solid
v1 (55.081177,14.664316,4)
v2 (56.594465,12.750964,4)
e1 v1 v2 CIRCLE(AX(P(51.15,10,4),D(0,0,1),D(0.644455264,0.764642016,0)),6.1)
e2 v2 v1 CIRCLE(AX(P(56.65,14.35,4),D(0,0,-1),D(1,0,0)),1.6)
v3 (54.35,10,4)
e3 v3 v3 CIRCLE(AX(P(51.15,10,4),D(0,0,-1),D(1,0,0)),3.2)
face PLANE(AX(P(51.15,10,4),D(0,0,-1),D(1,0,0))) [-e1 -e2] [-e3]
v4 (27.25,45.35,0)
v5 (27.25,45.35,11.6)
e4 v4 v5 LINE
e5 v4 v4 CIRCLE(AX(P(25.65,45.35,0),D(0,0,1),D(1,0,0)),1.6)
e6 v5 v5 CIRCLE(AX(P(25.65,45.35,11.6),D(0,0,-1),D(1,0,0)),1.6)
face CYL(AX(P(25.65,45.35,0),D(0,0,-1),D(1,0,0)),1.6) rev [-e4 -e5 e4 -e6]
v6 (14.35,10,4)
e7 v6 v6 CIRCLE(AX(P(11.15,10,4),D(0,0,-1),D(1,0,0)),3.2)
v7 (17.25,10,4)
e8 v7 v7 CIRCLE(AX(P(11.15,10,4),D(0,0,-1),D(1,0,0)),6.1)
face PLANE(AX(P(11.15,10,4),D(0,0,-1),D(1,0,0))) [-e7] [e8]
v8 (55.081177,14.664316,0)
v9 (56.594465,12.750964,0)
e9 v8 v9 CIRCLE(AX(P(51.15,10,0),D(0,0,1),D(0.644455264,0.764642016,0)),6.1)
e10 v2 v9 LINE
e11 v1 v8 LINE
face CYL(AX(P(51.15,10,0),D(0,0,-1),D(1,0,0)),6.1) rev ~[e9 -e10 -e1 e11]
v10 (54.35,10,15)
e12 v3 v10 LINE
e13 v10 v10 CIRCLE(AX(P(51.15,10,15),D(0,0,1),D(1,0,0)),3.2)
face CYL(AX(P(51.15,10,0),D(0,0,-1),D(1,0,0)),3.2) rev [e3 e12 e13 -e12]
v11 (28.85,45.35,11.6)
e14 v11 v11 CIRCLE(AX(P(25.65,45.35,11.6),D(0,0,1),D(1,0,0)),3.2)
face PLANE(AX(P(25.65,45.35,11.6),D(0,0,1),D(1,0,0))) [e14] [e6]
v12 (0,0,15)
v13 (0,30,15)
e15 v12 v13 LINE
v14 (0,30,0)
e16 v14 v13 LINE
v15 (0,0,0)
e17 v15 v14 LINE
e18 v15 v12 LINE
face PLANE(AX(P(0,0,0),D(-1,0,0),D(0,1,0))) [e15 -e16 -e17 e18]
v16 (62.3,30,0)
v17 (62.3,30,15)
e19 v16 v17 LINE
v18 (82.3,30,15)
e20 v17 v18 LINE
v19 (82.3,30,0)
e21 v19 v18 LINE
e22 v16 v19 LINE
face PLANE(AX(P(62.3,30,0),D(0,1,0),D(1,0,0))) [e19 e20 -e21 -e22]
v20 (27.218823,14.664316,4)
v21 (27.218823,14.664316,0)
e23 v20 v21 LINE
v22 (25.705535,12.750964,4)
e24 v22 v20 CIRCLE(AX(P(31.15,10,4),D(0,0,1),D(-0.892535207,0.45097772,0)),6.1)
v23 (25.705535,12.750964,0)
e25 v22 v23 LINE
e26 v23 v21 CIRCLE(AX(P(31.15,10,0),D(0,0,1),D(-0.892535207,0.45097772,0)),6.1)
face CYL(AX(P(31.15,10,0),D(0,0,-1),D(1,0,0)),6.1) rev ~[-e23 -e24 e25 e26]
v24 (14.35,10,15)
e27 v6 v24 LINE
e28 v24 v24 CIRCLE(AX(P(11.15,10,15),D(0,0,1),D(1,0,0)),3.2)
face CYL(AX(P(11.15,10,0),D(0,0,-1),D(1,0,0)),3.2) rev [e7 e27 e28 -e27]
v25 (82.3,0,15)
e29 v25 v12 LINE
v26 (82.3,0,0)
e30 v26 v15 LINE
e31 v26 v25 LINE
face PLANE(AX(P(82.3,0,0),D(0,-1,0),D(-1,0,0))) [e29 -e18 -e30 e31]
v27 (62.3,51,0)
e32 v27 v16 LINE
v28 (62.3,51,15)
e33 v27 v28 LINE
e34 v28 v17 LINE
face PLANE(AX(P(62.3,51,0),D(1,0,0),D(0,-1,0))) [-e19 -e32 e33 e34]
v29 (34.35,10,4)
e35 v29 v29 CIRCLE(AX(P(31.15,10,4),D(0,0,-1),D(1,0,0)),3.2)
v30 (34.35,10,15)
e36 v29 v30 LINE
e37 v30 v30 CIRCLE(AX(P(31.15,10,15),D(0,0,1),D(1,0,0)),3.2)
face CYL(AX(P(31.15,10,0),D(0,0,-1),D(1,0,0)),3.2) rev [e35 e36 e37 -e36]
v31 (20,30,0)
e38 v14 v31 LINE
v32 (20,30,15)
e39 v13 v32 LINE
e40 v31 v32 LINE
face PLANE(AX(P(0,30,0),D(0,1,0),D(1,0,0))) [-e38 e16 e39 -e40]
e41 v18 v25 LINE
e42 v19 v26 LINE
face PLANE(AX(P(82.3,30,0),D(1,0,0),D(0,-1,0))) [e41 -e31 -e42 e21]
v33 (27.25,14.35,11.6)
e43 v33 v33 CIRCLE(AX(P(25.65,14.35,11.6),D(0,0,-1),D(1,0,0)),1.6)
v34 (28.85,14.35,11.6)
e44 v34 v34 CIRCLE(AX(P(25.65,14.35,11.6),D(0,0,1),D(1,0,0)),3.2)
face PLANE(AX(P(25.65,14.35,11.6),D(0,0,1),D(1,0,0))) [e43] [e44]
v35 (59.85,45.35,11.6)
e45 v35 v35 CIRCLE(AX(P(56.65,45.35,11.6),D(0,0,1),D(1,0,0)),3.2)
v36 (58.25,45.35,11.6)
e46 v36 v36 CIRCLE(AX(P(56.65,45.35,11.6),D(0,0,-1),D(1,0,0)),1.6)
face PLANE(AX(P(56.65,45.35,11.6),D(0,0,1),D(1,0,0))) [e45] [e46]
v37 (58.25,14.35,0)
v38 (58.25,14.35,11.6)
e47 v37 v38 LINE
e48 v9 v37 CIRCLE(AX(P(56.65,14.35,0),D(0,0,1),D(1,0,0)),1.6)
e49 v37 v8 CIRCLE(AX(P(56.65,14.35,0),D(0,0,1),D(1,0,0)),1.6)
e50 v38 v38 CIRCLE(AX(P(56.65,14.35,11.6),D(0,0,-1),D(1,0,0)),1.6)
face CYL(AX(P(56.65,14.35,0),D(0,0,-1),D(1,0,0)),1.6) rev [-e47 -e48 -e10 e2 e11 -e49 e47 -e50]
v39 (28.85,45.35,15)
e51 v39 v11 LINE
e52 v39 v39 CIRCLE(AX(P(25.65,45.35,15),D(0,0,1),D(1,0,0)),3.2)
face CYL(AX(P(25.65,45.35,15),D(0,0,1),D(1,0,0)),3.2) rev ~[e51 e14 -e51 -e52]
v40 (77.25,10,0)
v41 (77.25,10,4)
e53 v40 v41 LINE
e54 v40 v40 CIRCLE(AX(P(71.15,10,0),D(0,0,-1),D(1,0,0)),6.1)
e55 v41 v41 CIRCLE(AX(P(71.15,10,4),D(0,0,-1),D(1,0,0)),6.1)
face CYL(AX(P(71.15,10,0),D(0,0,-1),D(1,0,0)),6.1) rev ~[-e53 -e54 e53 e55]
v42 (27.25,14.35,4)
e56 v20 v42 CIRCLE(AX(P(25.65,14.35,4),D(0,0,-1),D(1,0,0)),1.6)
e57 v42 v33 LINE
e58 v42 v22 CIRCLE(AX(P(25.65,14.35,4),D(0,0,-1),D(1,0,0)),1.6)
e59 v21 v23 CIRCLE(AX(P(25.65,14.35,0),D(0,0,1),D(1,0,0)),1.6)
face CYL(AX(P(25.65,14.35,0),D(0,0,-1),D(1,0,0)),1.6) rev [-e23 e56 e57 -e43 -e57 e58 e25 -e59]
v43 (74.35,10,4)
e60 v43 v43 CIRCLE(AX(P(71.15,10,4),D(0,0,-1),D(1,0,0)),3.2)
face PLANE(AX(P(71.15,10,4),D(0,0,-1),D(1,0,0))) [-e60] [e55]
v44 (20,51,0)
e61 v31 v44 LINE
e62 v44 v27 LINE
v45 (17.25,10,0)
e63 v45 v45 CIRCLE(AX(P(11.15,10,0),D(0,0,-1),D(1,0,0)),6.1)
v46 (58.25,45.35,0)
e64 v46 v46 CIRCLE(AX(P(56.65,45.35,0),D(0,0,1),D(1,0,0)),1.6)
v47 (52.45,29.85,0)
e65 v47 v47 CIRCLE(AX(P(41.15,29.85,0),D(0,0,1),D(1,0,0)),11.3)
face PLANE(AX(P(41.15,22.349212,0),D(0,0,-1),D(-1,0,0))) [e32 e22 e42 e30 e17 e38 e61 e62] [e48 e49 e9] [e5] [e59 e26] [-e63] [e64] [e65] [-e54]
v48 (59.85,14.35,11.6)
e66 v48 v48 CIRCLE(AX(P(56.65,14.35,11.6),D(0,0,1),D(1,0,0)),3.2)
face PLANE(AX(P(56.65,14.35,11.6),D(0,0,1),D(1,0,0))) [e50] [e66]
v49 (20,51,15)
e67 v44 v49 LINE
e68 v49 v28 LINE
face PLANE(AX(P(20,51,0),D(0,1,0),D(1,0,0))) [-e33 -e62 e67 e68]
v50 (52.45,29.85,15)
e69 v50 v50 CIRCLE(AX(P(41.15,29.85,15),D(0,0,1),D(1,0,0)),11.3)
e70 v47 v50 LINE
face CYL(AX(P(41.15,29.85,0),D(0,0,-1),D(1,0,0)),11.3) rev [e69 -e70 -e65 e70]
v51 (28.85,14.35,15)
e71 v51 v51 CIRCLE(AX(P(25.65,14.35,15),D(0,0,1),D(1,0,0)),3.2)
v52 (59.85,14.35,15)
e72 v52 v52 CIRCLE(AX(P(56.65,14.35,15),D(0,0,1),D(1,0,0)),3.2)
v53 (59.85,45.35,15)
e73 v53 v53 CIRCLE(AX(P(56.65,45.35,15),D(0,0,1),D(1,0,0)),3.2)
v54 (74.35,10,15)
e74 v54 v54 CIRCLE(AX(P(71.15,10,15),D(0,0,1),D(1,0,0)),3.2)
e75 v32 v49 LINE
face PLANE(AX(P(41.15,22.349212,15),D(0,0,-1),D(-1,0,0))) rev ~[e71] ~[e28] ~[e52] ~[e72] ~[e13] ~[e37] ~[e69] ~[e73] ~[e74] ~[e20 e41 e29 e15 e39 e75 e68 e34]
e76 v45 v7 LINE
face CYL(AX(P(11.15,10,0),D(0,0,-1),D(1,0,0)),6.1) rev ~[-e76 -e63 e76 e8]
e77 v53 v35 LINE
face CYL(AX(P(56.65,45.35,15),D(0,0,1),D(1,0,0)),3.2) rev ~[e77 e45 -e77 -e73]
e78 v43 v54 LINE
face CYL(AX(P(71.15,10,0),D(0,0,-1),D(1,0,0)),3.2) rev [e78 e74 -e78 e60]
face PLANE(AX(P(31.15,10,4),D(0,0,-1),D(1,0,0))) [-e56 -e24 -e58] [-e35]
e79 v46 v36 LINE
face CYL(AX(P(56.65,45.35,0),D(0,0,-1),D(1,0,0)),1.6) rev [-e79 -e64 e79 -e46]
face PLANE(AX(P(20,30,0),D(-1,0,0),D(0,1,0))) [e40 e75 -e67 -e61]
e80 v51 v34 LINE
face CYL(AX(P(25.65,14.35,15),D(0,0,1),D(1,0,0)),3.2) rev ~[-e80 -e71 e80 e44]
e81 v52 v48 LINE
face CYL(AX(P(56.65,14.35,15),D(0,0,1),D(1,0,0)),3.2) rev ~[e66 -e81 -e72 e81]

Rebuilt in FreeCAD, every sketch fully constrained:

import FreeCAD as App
import Part
import Sketcher
from FreeCAD import Vector
Q = App.Units.Quantity

doc = App.newDocument("Part")
body = doc.addObject("PartDesign::Body", "Body")

# Sketch on XY plane
sketch1 = doc.addObject("Sketcher::SketchObject", "Sketch")
body.addObject(sketch1)
sketch1.AttachmentSupport = (doc.XY_Plane, [""])
sketch1.MapMode = "FlatFace"
sketch1.addGeometry([
    Part.LineSegment(Vector(20, 51, 0), Vector(20, 30, 0)),  # 0
    Part.LineSegment(Vector(20, 30, 0), Vector(0, 30, 0)),  # 1
    Part.LineSegment(Vector(0, 30, 0), Vector(0, 0, 0)),  # 2
    Part.LineSegment(Vector(0, 0, 0), Vector(82.3, 0, 0)),  # 3
    Part.LineSegment(Vector(82.3, 0, 0), Vector(82.3, 30, 0)),  # 4
    Part.LineSegment(Vector(82.3, 30, 0), Vector(62.3, 30, 0)),  # 5
    Part.LineSegment(Vector(62.3, 30, 0), Vector(62.3, 51, 0)),  # 6
    Part.LineSegment(Vector(62.3, 51, 0), Vector(20, 51, 0)),  # 7
    Part.Circle(Vector(71.2, 10, 0), Vector(0, 0, 1), 3.2),  # 8
    Part.Circle(Vector(51.1, 10, 0), Vector(0, 0, 1), 3.2),  # 9
    Part.Circle(Vector(56.6, 14.3, 0), Vector(0, 0, 1), 1.6),  # 10
    Part.Circle(Vector(31.1, 10, 0), Vector(0, 0, 1), 3.2),  # 11
    Part.Circle(Vector(25.6, 14.3, 0), Vector(0, 0, 1), 1.6),  # 12
    Part.Circle(Vector(11.2, 10, 0), Vector(0, 0, 1), 3.2),  # 13
    Part.Circle(Vector(56.6, 45.4, 0), Vector(0, 0, 1), 1.6),  # 14
    Part.Circle(Vector(41.1, 29.9, 0), Vector(0, 0, 1), 11.3),  # 15
    Part.Circle(Vector(25.6, 45.4, 0), Vector(0, 0, 1), 1.6),  # 16
], False)
sketch1.addConstraint([
    Sketcher.Constraint("Coincident", 0, 2, 1, 1),
    Sketcher.Constraint("Coincident", 1, 2, 2, 1),
    Sketcher.Constraint("Coincident", 2, 2, 3, 1),
    Sketcher.Constraint("Coincident", 3, 2, 4, 1),
    Sketcher.Constraint("Coincident", 4, 2, 5, 1),
    Sketcher.Constraint("Coincident", 5, 2, 6, 1),
    Sketcher.Constraint("Coincident", 6, 2, 7, 1),
    Sketcher.Constraint("Coincident", 7, 2, 0, 1),
    Sketcher.Constraint("Vertical", 0),
    Sketcher.Constraint("Horizontal", 1),
    Sketcher.Constraint("Vertical", 2),
    Sketcher.Constraint("Horizontal", 3),
    Sketcher.Constraint("Vertical", 4),
    Sketcher.Constraint("Horizontal", 5),
    Sketcher.Constraint("Vertical", 6),
    Sketcher.Constraint("Horizontal", 7),
    Sketcher.Constraint("Coincident", 2, 2, -1, 1),
    Sketcher.Constraint("Equal", 8, 9),
    Sketcher.Constraint("Equal", 9, 11),
    Sketcher.Constraint("Equal", 10, 12),
    Sketcher.Constraint("Equal", 11, 13),
    Sketcher.Constraint("Equal", 12, 14),
    Sketcher.Constraint("Equal", 14, 16),
    Sketcher.Constraint("Horizontal", 8, 3, 9, 3),
    Sketcher.Constraint("Horizontal", 9, 3, 11, 3),
    Sketcher.Constraint("Horizontal", 10, 3, 12, 3),
    Sketcher.Constraint("Horizontal", 11, 3, 13, 3),
    Sketcher.Constraint("Horizontal", 14, 3, 16, 3),
    Sketcher.Constraint("Horizontal", 1, 2, 4, 2),
    Sketcher.Constraint("Vertical", 10, 3, 14, 3),
    Sketcher.Constraint("Vertical", 12, 3, 16, 3),
    Sketcher.Constraint("Equal", 1, 5),
    Sketcher.Constraint("Diameter", 8, Q("6.4 mm")),
    Sketcher.Constraint("Diameter", 10, Q("3.2 mm")),
    Sketcher.Constraint("Diameter", 15, Q("22.6 mm")),
    Sketcher.Constraint("DistanceX", 1, 2, 1, 1, Q("20 mm")),
    Sketcher.Constraint("DistanceY", 0, 2, 0, 1, Q("21 mm")),
    Sketcher.Constraint("DistanceY", 2, 2, 2, 1, Q("30 mm")),
    Sketcher.Constraint("DistanceX", 3, 1, 3, 2, Q("82.3 mm")),
    Sketcher.Constraint("DistanceY", -1, 1, 8, 3, Q("10 mm")),
    Sketcher.Constraint("DistanceX", 9, 3, 8, 3, Q("20 mm")),
    Sketcher.Constraint("DistanceX", 11, 3, 9, 3, Q("20 mm")),
    Sketcher.Constraint("DistanceX", 12, 3, 10, 3, Q("31 mm")),
    Sketcher.Constraint("DistanceX", 13, 3, 11, 3, Q("20 mm")),
    Sketcher.Constraint("DistanceY", 10, 3, 14, 3, Q("31 mm")),
    Sketcher.Constraint("DistanceX", 15, 3, 9, 3, Q("10 mm")),
    Sketcher.Constraint("DistanceX", 9, 3, 10, 3, Q("5.5 mm")),
    Sketcher.Constraint("DistanceY", 15, 3, 14, 3, Q("15.5 mm")),
    Sketcher.Constraint("DistanceX", -1, 1, 8, 3, Q("71.15 mm")),
    Sketcher.Constraint("DistanceY", -1, 1, 10, 3, Q("14.35 mm")),
])
pad1 = doc.addObject("PartDesign::Pad", "Pad")
body.addObject(pad1)
pad1.Profile = sketch1
pad1.Length = 15

# Sketch on XY plane
sketch2 = doc.addObject("Sketcher::SketchObject", "Sketch001")
body.addObject(sketch2)
sketch2.AttachmentSupport = (doc.XY_Plane, [""])
sketch2.MapMode = "FlatFace"
sketch2.AttachmentOffset = App.Placement(Vector(0, 0, 15), App.Rotation())
sketch2.addGeometry([
    Part.Circle(Vector(25.6, 45.4, 0), Vector(0, 0, 1), 3.2),
    Part.Circle(Vector(56.6, 45.4, 0), Vector(0, 0, 1), 3.2),
    Part.Circle(Vector(56.6, 14.3, 0), Vector(0, 0, 1), 3.2),
    Part.Circle(Vector(25.6, 14.3, 0), Vector(0, 0, 1), 3.2),
], False)
sketch2.addConstraint([
    Sketcher.Constraint("Equal", 0, 1),
    Sketcher.Constraint("Equal", 1, 2),
    Sketcher.Constraint("Equal", 2, 3),
    Sketcher.Constraint("Horizontal", 0, 3, 1, 3),
    Sketcher.Constraint("Horizontal", 2, 3, 3, 3),
    Sketcher.Constraint("Vertical", 1, 3, 2, 3),
    Sketcher.Constraint("Vertical", 0, 3, 3, 3),
    Sketcher.Constraint("Diameter", 0, Q("6.4 mm")),
    Sketcher.Constraint("DistanceX", 0, 3, 1, 3, Q("31 mm")),
    Sketcher.Constraint("DistanceY", 2, 3, 1, 3, Q("31 mm")),
    Sketcher.Constraint("DistanceX", -1, 1, 0, 3, Q("25.65 mm")),
    Sketcher.Constraint("DistanceY", -1, 1, 0, 3, Q("45.35 mm")),
])
pocket1 = doc.addObject("PartDesign::Pocket", "Pocket")
body.addObject(pocket1)
pocket1.Profile = sketch2
pocket1.Length = 3.4

# Sketch on XY plane
sketch3 = doc.addObject("Sketcher::SketchObject", "Sketch002")
body.addObject(sketch3)
sketch3.AttachmentSupport = (doc.XY_Plane, [""])
sketch3.MapMode = "FlatFace"
sketch3.addGeometry([
    Part.Circle(Vector(11, 10, 0), Vector(0, 0, 1), 6),
    Part.Circle(Vector(31, 10, 0), Vector(0, 0, 1), 6),
    Part.Circle(Vector(51, 10, 0), Vector(0, 0, 1), 6),
    Part.Circle(Vector(71, 10, 0), Vector(0, 0, 1), 6),
], False)
sketch3.addConstraint([
    Sketcher.Constraint("Equal", 0, 1),
    Sketcher.Constraint("Equal", 1, 2),
    Sketcher.Constraint("Equal", 2, 3),
    Sketcher.Constraint("Horizontal", 0, 3, 1, 3),
    Sketcher.Constraint("Horizontal", 1, 3, 2, 3),
    Sketcher.Constraint("Horizontal", 2, 3, 3, 3),
    Sketcher.Constraint("Diameter", 0, Q("12.2 mm")),
    Sketcher.Constraint("DistanceY", -1, 1, 0, 3, Q("10 mm")),
    Sketcher.Constraint("DistanceX", 0, 3, 1, 3, Q("20 mm")),
    Sketcher.Constraint("DistanceX", 1, 3, 2, 3, Q("20 mm")),
    Sketcher.Constraint("DistanceX", 2, 3, 3, 3, Q("20 mm")),
    Sketcher.Constraint("DistanceX", -1, 1, 0, 3, Q("11.15 mm")),
])
pocket2 = doc.addObject("PartDesign::Pocket", "Pocket001")
body.addObject(pocket2)
pocket2.Profile = sketch3
pocket2.Length = 4
pocket2.Reversed = True

doc.recompute()
